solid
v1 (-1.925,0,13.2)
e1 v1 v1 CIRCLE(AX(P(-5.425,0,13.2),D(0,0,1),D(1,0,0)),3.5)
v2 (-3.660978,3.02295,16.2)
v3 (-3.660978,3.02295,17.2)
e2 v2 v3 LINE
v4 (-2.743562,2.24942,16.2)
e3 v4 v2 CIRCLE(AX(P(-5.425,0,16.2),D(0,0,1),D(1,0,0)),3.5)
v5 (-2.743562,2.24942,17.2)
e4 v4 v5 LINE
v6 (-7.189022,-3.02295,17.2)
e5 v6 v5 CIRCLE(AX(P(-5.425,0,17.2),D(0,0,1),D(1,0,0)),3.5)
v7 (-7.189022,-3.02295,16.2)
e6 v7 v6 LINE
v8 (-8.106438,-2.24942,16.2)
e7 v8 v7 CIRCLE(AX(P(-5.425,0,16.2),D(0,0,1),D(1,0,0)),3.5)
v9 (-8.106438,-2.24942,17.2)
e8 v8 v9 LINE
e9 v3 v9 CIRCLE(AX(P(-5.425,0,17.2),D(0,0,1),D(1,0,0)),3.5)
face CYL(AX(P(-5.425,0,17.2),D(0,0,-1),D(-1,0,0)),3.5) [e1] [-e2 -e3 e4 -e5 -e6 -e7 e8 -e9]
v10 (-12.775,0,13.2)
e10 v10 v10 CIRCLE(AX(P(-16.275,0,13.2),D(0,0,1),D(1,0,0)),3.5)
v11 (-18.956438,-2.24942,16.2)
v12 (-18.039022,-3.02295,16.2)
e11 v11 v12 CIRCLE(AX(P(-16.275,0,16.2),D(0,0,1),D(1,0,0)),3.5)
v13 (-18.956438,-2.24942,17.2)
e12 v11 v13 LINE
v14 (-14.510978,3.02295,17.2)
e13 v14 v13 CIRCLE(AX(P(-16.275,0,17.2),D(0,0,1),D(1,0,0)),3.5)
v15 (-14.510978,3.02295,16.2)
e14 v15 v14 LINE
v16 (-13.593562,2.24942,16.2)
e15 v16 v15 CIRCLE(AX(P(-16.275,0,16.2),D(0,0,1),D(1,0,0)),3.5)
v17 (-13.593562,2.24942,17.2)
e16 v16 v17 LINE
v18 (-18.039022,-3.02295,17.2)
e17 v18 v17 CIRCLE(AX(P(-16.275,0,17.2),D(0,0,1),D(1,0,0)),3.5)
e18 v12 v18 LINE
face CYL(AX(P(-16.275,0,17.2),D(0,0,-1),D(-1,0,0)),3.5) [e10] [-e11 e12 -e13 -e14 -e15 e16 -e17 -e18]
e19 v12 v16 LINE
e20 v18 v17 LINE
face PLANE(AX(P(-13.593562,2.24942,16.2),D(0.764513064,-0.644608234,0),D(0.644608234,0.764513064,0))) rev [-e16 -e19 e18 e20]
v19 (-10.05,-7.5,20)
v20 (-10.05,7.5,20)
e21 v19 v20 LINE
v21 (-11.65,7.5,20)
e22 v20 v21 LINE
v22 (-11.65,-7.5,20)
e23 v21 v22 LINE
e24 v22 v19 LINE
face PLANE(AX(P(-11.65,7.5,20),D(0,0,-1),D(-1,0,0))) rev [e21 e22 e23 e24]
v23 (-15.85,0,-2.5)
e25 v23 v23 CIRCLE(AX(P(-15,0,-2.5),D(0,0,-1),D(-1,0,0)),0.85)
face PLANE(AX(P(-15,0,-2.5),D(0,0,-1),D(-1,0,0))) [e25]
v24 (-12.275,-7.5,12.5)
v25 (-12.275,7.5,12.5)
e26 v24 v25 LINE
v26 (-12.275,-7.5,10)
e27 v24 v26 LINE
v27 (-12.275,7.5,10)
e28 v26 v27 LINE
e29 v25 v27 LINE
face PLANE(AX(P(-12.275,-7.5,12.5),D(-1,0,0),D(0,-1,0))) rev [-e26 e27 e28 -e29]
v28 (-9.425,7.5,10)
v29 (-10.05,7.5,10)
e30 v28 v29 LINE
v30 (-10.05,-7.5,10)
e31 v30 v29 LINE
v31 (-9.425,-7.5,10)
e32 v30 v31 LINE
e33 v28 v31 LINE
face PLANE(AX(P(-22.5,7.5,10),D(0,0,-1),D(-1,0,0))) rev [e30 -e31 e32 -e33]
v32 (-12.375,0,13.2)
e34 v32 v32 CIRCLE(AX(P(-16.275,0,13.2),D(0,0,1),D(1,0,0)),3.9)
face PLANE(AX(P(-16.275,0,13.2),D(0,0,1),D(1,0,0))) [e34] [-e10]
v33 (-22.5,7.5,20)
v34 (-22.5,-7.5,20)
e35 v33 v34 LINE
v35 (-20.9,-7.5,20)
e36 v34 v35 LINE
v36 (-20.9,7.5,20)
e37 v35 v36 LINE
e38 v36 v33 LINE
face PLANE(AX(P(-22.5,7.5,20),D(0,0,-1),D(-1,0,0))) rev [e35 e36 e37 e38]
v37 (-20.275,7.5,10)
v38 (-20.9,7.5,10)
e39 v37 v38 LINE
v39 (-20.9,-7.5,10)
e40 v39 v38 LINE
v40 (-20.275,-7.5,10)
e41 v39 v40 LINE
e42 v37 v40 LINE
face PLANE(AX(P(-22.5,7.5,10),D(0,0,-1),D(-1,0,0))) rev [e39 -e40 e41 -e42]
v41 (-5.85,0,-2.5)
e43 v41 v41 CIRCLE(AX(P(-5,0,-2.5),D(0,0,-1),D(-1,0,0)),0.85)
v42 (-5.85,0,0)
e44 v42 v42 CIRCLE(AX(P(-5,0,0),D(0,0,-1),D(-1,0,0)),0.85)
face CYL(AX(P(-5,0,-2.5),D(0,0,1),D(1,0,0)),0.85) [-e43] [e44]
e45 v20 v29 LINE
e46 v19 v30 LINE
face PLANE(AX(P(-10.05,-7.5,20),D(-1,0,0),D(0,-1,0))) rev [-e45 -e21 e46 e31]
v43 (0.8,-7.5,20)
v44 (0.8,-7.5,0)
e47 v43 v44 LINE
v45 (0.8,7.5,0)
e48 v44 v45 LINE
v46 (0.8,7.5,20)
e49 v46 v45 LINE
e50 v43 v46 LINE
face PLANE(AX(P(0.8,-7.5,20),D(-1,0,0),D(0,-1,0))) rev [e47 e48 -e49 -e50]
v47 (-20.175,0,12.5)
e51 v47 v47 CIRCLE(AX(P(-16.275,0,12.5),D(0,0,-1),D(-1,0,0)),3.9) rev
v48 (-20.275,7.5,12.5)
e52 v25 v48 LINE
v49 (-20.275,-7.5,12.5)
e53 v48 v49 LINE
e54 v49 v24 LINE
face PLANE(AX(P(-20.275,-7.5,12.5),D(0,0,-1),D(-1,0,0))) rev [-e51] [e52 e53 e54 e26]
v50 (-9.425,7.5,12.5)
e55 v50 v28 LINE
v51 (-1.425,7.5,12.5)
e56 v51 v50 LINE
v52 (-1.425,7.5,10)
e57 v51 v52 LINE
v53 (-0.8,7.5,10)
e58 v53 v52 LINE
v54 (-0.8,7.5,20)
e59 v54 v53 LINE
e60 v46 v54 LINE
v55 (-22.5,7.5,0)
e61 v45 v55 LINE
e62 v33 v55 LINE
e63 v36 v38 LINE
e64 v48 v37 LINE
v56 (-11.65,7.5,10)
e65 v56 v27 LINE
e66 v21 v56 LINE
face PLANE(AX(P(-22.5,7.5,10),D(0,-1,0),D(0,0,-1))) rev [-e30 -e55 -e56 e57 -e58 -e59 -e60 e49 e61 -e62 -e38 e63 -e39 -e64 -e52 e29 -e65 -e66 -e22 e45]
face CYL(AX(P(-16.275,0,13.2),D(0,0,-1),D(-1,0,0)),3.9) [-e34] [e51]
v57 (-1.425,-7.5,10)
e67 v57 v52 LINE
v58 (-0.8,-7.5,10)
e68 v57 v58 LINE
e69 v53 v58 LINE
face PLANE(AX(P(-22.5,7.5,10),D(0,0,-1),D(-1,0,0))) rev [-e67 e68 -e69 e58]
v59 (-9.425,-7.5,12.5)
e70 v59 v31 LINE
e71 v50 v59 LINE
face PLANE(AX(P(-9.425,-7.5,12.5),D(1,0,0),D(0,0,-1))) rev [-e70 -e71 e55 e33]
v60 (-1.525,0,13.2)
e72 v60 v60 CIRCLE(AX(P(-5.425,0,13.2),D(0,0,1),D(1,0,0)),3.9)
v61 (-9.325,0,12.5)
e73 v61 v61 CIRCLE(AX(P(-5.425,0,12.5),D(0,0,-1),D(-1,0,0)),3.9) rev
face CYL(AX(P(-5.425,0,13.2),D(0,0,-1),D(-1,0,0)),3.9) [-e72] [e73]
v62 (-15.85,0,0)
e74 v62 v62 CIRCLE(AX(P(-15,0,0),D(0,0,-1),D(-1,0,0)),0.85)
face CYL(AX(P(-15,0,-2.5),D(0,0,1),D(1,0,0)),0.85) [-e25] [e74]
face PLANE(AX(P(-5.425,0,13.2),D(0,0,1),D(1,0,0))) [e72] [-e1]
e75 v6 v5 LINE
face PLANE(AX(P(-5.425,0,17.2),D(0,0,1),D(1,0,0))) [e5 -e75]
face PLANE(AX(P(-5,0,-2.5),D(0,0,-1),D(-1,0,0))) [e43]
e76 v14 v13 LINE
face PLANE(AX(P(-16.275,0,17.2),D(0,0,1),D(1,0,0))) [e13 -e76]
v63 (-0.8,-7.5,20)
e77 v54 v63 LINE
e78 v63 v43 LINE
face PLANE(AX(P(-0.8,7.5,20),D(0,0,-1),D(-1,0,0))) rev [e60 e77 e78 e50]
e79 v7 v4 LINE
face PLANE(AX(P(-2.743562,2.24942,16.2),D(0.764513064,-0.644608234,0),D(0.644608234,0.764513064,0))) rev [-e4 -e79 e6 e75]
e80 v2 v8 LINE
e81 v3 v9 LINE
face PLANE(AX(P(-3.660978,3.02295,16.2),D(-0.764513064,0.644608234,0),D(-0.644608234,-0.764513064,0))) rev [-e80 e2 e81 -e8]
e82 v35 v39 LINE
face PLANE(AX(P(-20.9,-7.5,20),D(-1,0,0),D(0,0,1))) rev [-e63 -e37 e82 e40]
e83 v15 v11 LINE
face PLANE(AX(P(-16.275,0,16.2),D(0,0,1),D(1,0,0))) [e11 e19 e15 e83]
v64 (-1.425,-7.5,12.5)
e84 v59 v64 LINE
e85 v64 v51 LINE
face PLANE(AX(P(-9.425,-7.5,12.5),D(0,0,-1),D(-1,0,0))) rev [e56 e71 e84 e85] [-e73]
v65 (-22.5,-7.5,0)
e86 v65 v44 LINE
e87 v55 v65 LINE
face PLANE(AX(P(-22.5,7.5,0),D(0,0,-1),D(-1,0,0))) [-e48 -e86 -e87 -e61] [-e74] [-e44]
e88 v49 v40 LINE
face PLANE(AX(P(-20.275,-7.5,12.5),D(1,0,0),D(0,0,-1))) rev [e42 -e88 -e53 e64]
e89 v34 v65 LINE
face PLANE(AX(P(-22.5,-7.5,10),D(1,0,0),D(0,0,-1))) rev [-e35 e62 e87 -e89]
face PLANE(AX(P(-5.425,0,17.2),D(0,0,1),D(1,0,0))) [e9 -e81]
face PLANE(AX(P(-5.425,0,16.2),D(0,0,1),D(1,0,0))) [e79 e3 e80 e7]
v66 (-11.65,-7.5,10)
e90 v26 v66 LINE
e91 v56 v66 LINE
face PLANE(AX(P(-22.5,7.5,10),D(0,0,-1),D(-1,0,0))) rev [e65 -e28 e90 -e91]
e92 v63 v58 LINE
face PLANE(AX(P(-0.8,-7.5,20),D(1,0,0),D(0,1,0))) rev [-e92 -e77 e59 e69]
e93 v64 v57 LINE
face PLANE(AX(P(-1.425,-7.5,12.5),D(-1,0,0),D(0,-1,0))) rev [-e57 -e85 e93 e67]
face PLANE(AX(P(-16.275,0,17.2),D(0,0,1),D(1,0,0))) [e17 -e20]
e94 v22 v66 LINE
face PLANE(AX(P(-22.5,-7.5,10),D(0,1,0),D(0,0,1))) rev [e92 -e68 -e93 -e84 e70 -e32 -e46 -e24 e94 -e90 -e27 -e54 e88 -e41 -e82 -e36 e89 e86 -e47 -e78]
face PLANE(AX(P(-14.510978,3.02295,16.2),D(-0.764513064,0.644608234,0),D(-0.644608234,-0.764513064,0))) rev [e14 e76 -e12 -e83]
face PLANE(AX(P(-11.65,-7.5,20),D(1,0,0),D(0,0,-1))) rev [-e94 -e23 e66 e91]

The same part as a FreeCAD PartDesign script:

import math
import FreeCAD as App
import Part
import Sketcher
Q = App.Units.Quantity


def add_polygon(sketch, points):
    """Adds a closed chain of lines whose ends are joined by coincident constraints."""
    first, n = sketch.GeometryCount, len(points)
    for a, b in zip(points, points[1:] + points[:1]):
        sketch.addGeometry(Part.LineSegment(App.Vector(*a, 0), App.Vector(*b, 0)), False)
    for i in range(n):
        sketch.addConstraint(Sketcher.Constraint("Coincident", first + i, 2, first + (i + 1) % n, 1))

doc = App.newDocument("Part")
body = doc.addObject("PartDesign::Body", "Body")

sketch1 = body.newObject("Sketcher::SketchObject", "Sketch")
sketch1.AttachmentSupport = (doc.getObject("XY_Plane"), [""])
sketch1.MapMode = "FlatFace"
add_polygon(sketch1, [(-22, 8), (-22, -8), (22, -8), (22, 8)])
sketch1.addConstraint([
    Sketcher.Constraint("Vertical", 0),
    Sketcher.Constraint("Horizontal", 1),
    Sketcher.Constraint("Vertical", 2),
    Sketcher.Constraint("Horizontal", 3),
    Sketcher.Constraint("Symmetric", 0, 2, 2, 2, -1, 1),
    Sketcher.Constraint("DistanceX", 1, 1, 1, 2, Q("45 mm")),
    Sketcher.Constraint("DistanceY", 0, 2, 0, 1, Q("15 mm")),
])
pad1 = body.newObject("PartDesign::Pad", "Pad")
pad1.Profile = sketch1
pad1.Length = 10

sketch2 = body.newObject("Sketcher::SketchObject", "Sketch001")
sketch2.AttachmentSupport = (doc.getObject("XY_Plane"), [""])
sketch2.MapMode = "FlatFace"
sketch2.AttachmentOffset = App.Placement(App.Vector(0, 0, 10), App.Rotation())
add_polygon(sketch2, [(-22.5, 7.5), (-22.5, -7.5), (-20.9, -7.5), (-20.9, 7.5)])
add_polygon(sketch2, [(-11.7, 7.5), (-11.7, -7.5), (-10.1, -7.5), (-10.1, 7.5)])
add_polygon(sketch2, [(-0.8, 7.5), (-0.8, -7.5), (0.8, -7.5), (0.8, 7.5)])
add_polygon(sketch2, [(10.1, 7.5), (10.1, -7.5), (11.7, -7.5), (11.7, 7.5)])
add_polygon(sketch2, [(20.9, 7.5), (20.9, -7.5), (22.5, -7.5), (22.5, 7.5)])
sketch2.addConstraint([
    Sketcher.Constraint("Vertical", 0),
    Sketcher.Constraint("Horizontal", 1),
    Sketcher.Constraint("Vertical", 2),
    Sketcher.Constraint("Horizontal", 3),
    Sketcher.Constraint("Vertical", 4),
    Sketcher.Constraint("Horizontal", 5),
    Sketcher.Constraint("Vertical", 6),
    Sketcher.Constraint("Horizontal", 7),
    Sketcher.Constraint("Vertical", 8),
    Sketcher.Constraint("Horizontal", 9),
    Sketcher.Constraint("Vertical", 10),
    Sketcher.Constraint("Horizontal", 11),
    Sketcher.Constraint("Vertical", 12),
    Sketcher.Constraint("Horizontal", 13),
    Sketcher.Constraint("Vertical", 14),
    Sketcher.Constraint("Horizontal", 15),
    Sketcher.Constraint("Vertical", 16),
    Sketcher.Constraint("Horizontal", 17),
    Sketcher.Constraint("Vertical", 18),
    Sketcher.Constraint("Horizontal", 19),
    Sketcher.Constraint("Symmetric", 8, 2, 10, 2, -1, 1),
    Sketcher.Constraint("Symmetric", 6, 2, 12, 2, -1, 1),
    Sketcher.Constraint("Symmetric", 4, 2, 14, 2, -1, 1),
    Sketcher.Constraint("Symmetric", 2, 2, 16, 2, -1, 1),
    Sketcher.Constraint("Symmetric", 0, 2, 18, 2, -1, 1),
    Sketcher.Constraint("Horizontal", 1, 2, 4, 2),
    Sketcher.Constraint("Horizontal", 3, 2, 6, 2),
    Sketcher.Constraint("Horizontal", 5, 2, 8, 2),
    Sketcher.Constraint("Horizontal", 7, 2, 10, 2),
    Sketcher.Constraint("Equal", 3, 5),
    Sketcher.Constraint("Equal", 7, 9),
    Sketcher.Constraint("DistanceY", 0, 2, 0, 1, Q("15 mm")),
    Sketcher.Constraint("DistanceX", 1, 1, 1, 2, Q("1.6 mm")),
    Sketcher.Constraint("DistanceX", 0, 2, -1, 1, Q("22.5 mm")),
    Sketcher.Constraint("DistanceX", 5, 2, 12, 2, Q("20.1 mm")),
])
pad2 = body.newObject("PartDesign::Pad", "Pad001")
pad2.Profile = sketch2
pad2.Length = 10

sketch3 = body.newObject("Sketcher::SketchObject", "Sketch002")
sketch3.AttachmentSupport = (doc.getObject("XY_Plane"), [""])
sketch3.MapMode = "FlatFace"
sketch3.AttachmentOffset = App.Placement(App.Vector(0, 0, 10), App.Rotation())
add_polygon(sketch3, [(-20, 8), (-20, -8), (-12, -8), (-12, 8)])
add_polygon(sketch3, [(-9, 8), (-9, -8), (-1, -8), (-1, 8)])
add_polygon(sketch3, [(1, 8), (1, -8), (9, -8), (9, 8)])
add_polygon(sketch3, [(12, 8), (12, -8), (20, -8), (20, 8)])
sketch3.addConstraint([
    Sketcher.Constraint("Vertical", 0),
    Sketcher.Constraint("Horizontal", 1),
    Sketcher.Constraint("Vertical", 2),
    Sketcher.Constraint("Horizontal", 3),
    Sketcher.Constraint("Vertical", 4),
    Sketcher.Constraint("Horizontal", 5),
    Sketcher.Constraint("Vertical", 6),
    Sketcher.Constraint("Horizontal", 7),
    Sketcher.Constraint("Vertical", 8),
    Sketcher.Constraint("Horizontal", 9),
    Sketcher.Constraint("Vertical", 10),
    Sketcher.Constraint("Horizontal", 11),
    Sketcher.Constraint("Vertical", 12),
    Sketcher.Constraint("Horizontal", 13),
    Sketcher.Constraint("Vertical", 14),
    Sketcher.Constraint("Horizontal", 15),
    Sketcher.Constraint("Symmetric", 6, 2, 8, 2, -1, 1),
    Sketcher.Constraint("Symmetric", 4, 2, 10, 2, -1, 1),
    Sketcher.Constraint("Symmetric", 2, 2, 12, 2, -1, 1),
    Sketcher.Constraint("Symmetric", 0, 2, 14, 2, -1, 1),
    Sketcher.Constraint("Horizontal", 1, 2, 4, 2),
    Sketcher.Constraint("Horizontal", 3, 2, 6, 2),
    Sketcher.Constraint("Horizontal", 5, 2, 8, 2),
    Sketcher.Constraint("Equal", 3, 5),
    Sketcher.Constraint("DistanceX", 1, 1, 1, 2, Q("8 mm")),
    Sketcher.Constraint("DistanceY", 0, 2, 0, 1, Q("15 mm")),
    Sketcher.Constraint("DistanceX", 1, 2, 8, 2, Q("13.7 mm")),
    Sketcher.Constraint("DistanceX", 1, 2, 4, 2, Q("2.85 mm")),
])
pad3 = body.newObject("PartDesign::Pad", "Pad002")
pad3.Profile = sketch3
pad3.Length = 2.5

sketch4 = body.newObject("Sketcher::SketchObject", "Sketch003")
sketch4.AttachmentSupport = (doc.getObject("XY_Plane"), [""])
sketch4.MapMode = "FlatFace"
sketch4.AttachmentOffset = App.Placement(App.Vector(0, 0, 12.5), App.Rotation())
sketch4.addGeometry([
    Part.Circle(App.Vector(-16.3, 0, 0), App.Vector(0, 0, 1), 3.9),
    Part.Circle(App.Vector(-5.4, 0, 0), App.Vector(0, 0, 1), 3.9),
    Part.Circle(App.Vector(5.4, 0, 0), App.Vector(0, 0, 1), 3.9),
    Part.Circle(App.Vector(16.3, 0, 0), App.Vector(0, 0, 1), 3.9),
], False)
sketch4.addConstraint([
    Sketcher.Constraint("Equal", 0, 1),
    Sketcher.Constraint("Equal", 1, 2),
    Sketcher.Constraint("Equal", 2, 3),
    Sketcher.Constraint("Symmetric", 1, 3, 2, 3, -1, 1),
    Sketcher.Constraint("Symmetric", 0, 3, 3, 3, -1, 1),
    Sketcher.Constraint("PointOnObject", 0, 3, -1),
    Sketcher.Constraint("PointOnObject", 1, 3, -1),
    Sketcher.Constraint("Diameter", 0, Q("7.8 mm")),
    Sketcher.Constraint("DistanceX", 0, 3, 2, 3, Q("21.7 mm")),
    Sketcher.Constraint("DistanceX", 0, 3, 1, 3, Q("10.85 mm")),
])
pad4 = body.newObject("PartDesign::Pad", "Pad003")
pad4.Profile = sketch4
pad4.Length = 0.7

sketch5 = body.newObject("Sketcher::SketchObject", "Sketch004")
sketch5.AttachmentSupport = (doc.getObject("XY_Plane"), [""])
sketch5.MapMode = "FlatFace"
sketch5.AttachmentOffset = App.Placement(App.Vector(0, 0, 13.2), App.Rotation())
sketch5.addGeometry([
    Part.Circle(App.Vector(-16.3, 0, 0), App.Vector(0, 0, 1), 3.5),
    Part.Circle(App.Vector(-5.4, 0, 0), App.Vector(0, 0, 1), 3.5),
    Part.Circle(App.Vector(5.4, 0, 0), App.Vector(0, 0, 1), 3.5),
    Part.Circle(App.Vector(16.3, 0, 0), App.Vector(0, 0, 1), 3.5),
], False)
sketch5.addConstraint([
    Sketcher.Constraint("Equal", 0, 1),
    Sketcher.Constraint("Equal", 1, 2),
    Sketcher.Constraint("Equal", 2, 3),
    Sketcher.Constraint("Symmetric", 1, 3, 2, 3, -1, 1),
    Sketcher.Constraint("Symmetric", 0, 3, 3, 3, -1, 1),
    Sketcher.Constraint("PointOnObject", 0, 3, -1),
    Sketcher.Constraint("PointOnObject", 1, 3, -1),
    Sketcher.Constraint("Diameter", 0, Q("7 mm")),
    Sketcher.Constraint("DistanceX", 0, 3, 2, 3, Q("21.7 mm")),
    Sketcher.Constraint("DistanceX", 0, 3, 1, 3, Q("10.85 mm")),
])
pad5 = body.newObject("PartDesign::Pad", "Pad004")
pad5.Profile = sketch5
pad5.Length = 4

sketch6 = body.newObject("Sketcher::SketchObject", "Sketch005")
sketch6.AttachmentSupport = (doc.getObject("XY_Plane"), [""])
sketch6.MapMode = "FlatFace"
sketch6.AttachmentOffset = App.Placement(App.Vector(0, 0, 16.2), App.Rotation())
sketch6.addGeometry([
    Part.LineSegment(App.Vector(-14.5, 3, 0), App.Vector(-19, -2.2, 0)),
    Part.ArcOfCircle(Part.Circle(App.Vector(-16.3, 0, 0), App.Vector(0, 0, 1), 3.5), math.radians(-140.01), math.radians(-120.27)),
    Part.LineSegment(App.Vector(-18, -3, 0), App.Vector(-13.6, 2.2, 0)),
    Part.ArcOfCircle(Part.Circle(App.Vector(-16.3, 0, 0), App.Vector(0, 0, 1), 3.5), math.radians(39.99), math.radians(59.73)),
    Part.LineSegment(App.Vector(-3.7, 3, 0), App.Vector(-8.1, -2.2, 0)),
    Part.ArcOfCircle(Part.Circle(App.Vector(-5.4, 0, 0), App.Vector(0, 0, 1), 3.5), math.radians(-140.01), math.radians(-120.27)),
    Part.LineSegment(App.Vector(-7.2, -3, 0), App.Vector(-2.7, 2.2, 0)),
    Part.ArcOfCircle(Part.Circle(App.Vector(-5.4, 0, 0), App.Vector(0, 0, 1), 3.5), math.radians(39.99), math.radians(59.73)),
    Part.LineSegment(App.Vector(7.2, 3, 0), App.Vector(2.7, -2.2, 0)),
    Part.ArcOfCircle(Part.Circle(App.Vector(5.4, 0, 0), App.Vector(0, 0, 1), 3.5), math.radians(-140.01), math.radians(-120.27)),
    Part.LineSegment(App.Vector(3.7, -3, 0), App.Vector(8.1, 2.2, 0)),
    Part.ArcOfCircle(Part.Circle(App.Vector(5.4, 0, 0), App.Vector(0, 0, 1), 3.5), math.radians(39.99), math.radians(59.73)),
    Part.LineSegment(App.Vector(18, 3, 0), App.Vector(13.6, -2.2, 0)),
    Part.ArcOfCircle(Part.Circle(App.Vector(16.3, 0, 0), App.Vector(0, 0, 1), 3.5), math.radians(-140.01), math.radians(-120.27)),
    Part.LineSegment(App.Vector(14.5, -3, 0), App.Vector(19, 2.2, 0)),
    Part.ArcOfCircle(Part.Circle(App.Vector(16.3, 0, 0), App.Vector(0, 0, 1), 3.5), math.radians(39.99), math.radians(59.73)),
], False)
sketch6.addConstraint([
    Sketcher.Constraint("Coincident", 0, 2, 1, 1),
    Sketcher.Constraint("Coincident", 1, 2, 2, 1),
    Sketcher.Constraint("Coincident", 2, 2, 3, 1),
    Sketcher.Constraint("Coincident", 3, 2, 0, 1),
    Sketcher.Constraint("Coincident", 4, 2, 5, 1),
    Sketcher.Constraint("Coincident", 5, 2, 6, 1),
    Sketcher.Constraint("Coincident", 6, 2, 7, 1),
    Sketcher.Constraint("Coincident", 7, 2, 4, 1),
    Sketcher.Constraint("Coincident", 8, 2, 9, 1),
    Sketcher.Constraint("Coincident", 9, 2, 10, 1),
    Sketcher.Constraint("Coincident", 10, 2, 11, 1),
    Sketcher.Constraint("Coincident", 11, 2, 8, 1),
    Sketcher.Constraint("Coincident", 12, 2, 13, 1),
    Sketcher.Constraint("Coincident", 13, 2, 14, 1),
    Sketcher.Constraint("Coincident", 14, 2, 15, 1),
    Sketcher.Constraint("Coincident", 15, 2, 12, 1),
    Sketcher.Constraint("Coincident", 3, 3, 1, 3),
    Sketcher.Constraint("Coincident", 7, 3, 5, 3),
    Sketcher.Constraint("Coincident", 11, 3, 9, 3),
    Sketcher.Constraint("Coincident", 15, 3, 13, 3),
    Sketcher.Constraint("Equal", 1, 3),
    Sketcher.Constraint("Equal", 3, 5),
    Sketcher.Constraint("Equal", 5, 7),
    Sketcher.Constraint("Equal", 7, 9),
    Sketcher.Constraint("Equal", 9, 11),
    Sketcher.Constraint("Equal", 11, 13),
    Sketcher.Constraint("Equal", 13, 15),
    Sketcher.Constraint("Symmetric", 5, 3, 9, 3, -1, 1),
    Sketcher.Constraint("Symmetric", 1, 3, 13, 3, -1, 1),
    Sketcher.Constraint("PointOnObject", 1, 3, -1),
    Sketcher.Constraint("PointOnObject", 5, 3, -1),
    Sketcher.Constraint("Parallel", 0, 2),
    Sketcher.Constraint("Parallel", 2, 4),
    Sketcher.Constraint("Parallel", 4, 6),
    Sketcher.Constraint("Parallel", 6, 8),
    Sketcher.Constraint("Parallel", 8, 10),
    Sketcher.Constraint("Parallel", 10, 12),
    Sketcher.Constraint("Parallel", 12, 14),
    Sketcher.Constraint("Horizontal", 0, 2, 4, 2),
    Sketcher.Constraint("Horizontal", 1, 2, 5, 2),
    Sketcher.Constraint("Horizontal", 4, 2, 8, 2),
    Sketcher.Constraint("Horizontal", 5, 2, 9, 2),
    Sketcher.Constraint("Horizontal", 8, 2, 12, 2),
    Sketcher.Constraint("Horizontal", 9, 2, 13, 2),
    Sketcher.Constraint("Equal", 0, 2),
    Sketcher.Constraint("Radius", 1, Q("3.5 mm")),
    Sketcher.Constraint("DistanceX", 1, 3, 9, 3, Q("21.7 mm")),
    Sketcher.Constraint("DistanceX", 1, 3, 5, 3, Q("10.85 mm")),
    Sketcher.Constraint("DistanceY", 1, 2, 3, 2, Q("6.045899 mm")),
    Sketcher.Constraint("DistanceX", 0, 2, -1, 1, Q("18.956438 mm")),
])
pocket1 = body.newObject("PartDesign::Pocket", "Pocket")
pocket1.Profile = sketch6
pocket1.Length = 1
pocket1.Reversed = True

sketch7 = body.newObject("Sketcher::SketchObject", "Sketch006")
sketch7.AttachmentSupport = (doc.getObject("XY_Plane"), [""])
sketch7.MapMode = "FlatFace"
sketch7.addGeometry([
    Part.Circle(App.Vector(5, 0, 0), App.Vector(0, 0, 1), 0.8),
    Part.Circle(App.Vector(-5, 0, 0), App.Vector(0, 0, 1), 0.8),
    Part.Circle(App.Vector(-15, 0, 0), App.Vector(0, 0, 1), 0.8),
    Part.Circle(App.Vector(15, 0, 0), App.Vector(0, 0, 1), 0.8),
], False)
sketch7.addConstraint([
    Sketcher.Constraint("Equal", 0, 1),
    Sketcher.Constraint("Equal", 1, 2),
    Sketcher.Constraint("Equal", 2, 3),
    Sketcher.Constraint("Symmetric", 0, 3, 1, 3, -1, 1),
    Sketcher.Constraint("Symmetric", 2, 3, 3, 3, -1, 1),
    Sketcher.Constraint("PointOnObject", 0, 3, -1),
    Sketcher.Constraint("PointOnObject", 2, 3, -1),
    Sketcher.Constraint("Diameter", 0, Q("1.7 mm")),
    Sketcher.Constraint("DistanceX", -1, 1, 0, 3, Q("5 mm")),
    Sketcher.Constraint("DistanceX", 2, 3, -1, 1, Q("15 mm")),
])
pad6 = body.newObject("PartDesign::Pad", "Pad005")
pad6.Profile = sketch7
pad6.Length = 2.5
pad6.Reversed = True

sketch8 = body.newObject("Sketcher::SketchObject", "Sketch007")
sketch8.AttachmentSupport = (doc.getObject("YZ_Plane"), [""])
sketch8.MapMode = "FlatFace"
sketch8.AttachmentOffset = App.Placement(App.Vector(0, 0, 22.5), App.Rotation())
add_polygon(sketch8, [(12, 23), (-12, 23), (-12, -5), (12, -5)])
sketch8.addConstraint([
    Sketcher.Constraint("Horizontal", 0),
    Sketcher.Constraint("Vertical", 1),
    Sketcher.Constraint("Horizontal", 2),
    Sketcher.Constraint("Vertical", 3),
    Sketcher.Constraint("DistanceX", 0, 2, 0, 1, Q("24.026199 mm")),
    Sketcher.Constraint("DistanceY", 1, 2, -1, 1, Q("5.284899 mm")),
    Sketcher.Constraint("DistanceY", 1, 2, 1, 1, Q("28.344633 mm")),
    Sketcher.Constraint("DistanceX", 0, 2, -1, 1, Q("11.718661 mm")),
])
pocket2 = body.newObject("PartDesign::Pocket", "Pocket001")
pocket2.Profile = sketch8
pocket2.Length = 21.7

doc.recompute()
